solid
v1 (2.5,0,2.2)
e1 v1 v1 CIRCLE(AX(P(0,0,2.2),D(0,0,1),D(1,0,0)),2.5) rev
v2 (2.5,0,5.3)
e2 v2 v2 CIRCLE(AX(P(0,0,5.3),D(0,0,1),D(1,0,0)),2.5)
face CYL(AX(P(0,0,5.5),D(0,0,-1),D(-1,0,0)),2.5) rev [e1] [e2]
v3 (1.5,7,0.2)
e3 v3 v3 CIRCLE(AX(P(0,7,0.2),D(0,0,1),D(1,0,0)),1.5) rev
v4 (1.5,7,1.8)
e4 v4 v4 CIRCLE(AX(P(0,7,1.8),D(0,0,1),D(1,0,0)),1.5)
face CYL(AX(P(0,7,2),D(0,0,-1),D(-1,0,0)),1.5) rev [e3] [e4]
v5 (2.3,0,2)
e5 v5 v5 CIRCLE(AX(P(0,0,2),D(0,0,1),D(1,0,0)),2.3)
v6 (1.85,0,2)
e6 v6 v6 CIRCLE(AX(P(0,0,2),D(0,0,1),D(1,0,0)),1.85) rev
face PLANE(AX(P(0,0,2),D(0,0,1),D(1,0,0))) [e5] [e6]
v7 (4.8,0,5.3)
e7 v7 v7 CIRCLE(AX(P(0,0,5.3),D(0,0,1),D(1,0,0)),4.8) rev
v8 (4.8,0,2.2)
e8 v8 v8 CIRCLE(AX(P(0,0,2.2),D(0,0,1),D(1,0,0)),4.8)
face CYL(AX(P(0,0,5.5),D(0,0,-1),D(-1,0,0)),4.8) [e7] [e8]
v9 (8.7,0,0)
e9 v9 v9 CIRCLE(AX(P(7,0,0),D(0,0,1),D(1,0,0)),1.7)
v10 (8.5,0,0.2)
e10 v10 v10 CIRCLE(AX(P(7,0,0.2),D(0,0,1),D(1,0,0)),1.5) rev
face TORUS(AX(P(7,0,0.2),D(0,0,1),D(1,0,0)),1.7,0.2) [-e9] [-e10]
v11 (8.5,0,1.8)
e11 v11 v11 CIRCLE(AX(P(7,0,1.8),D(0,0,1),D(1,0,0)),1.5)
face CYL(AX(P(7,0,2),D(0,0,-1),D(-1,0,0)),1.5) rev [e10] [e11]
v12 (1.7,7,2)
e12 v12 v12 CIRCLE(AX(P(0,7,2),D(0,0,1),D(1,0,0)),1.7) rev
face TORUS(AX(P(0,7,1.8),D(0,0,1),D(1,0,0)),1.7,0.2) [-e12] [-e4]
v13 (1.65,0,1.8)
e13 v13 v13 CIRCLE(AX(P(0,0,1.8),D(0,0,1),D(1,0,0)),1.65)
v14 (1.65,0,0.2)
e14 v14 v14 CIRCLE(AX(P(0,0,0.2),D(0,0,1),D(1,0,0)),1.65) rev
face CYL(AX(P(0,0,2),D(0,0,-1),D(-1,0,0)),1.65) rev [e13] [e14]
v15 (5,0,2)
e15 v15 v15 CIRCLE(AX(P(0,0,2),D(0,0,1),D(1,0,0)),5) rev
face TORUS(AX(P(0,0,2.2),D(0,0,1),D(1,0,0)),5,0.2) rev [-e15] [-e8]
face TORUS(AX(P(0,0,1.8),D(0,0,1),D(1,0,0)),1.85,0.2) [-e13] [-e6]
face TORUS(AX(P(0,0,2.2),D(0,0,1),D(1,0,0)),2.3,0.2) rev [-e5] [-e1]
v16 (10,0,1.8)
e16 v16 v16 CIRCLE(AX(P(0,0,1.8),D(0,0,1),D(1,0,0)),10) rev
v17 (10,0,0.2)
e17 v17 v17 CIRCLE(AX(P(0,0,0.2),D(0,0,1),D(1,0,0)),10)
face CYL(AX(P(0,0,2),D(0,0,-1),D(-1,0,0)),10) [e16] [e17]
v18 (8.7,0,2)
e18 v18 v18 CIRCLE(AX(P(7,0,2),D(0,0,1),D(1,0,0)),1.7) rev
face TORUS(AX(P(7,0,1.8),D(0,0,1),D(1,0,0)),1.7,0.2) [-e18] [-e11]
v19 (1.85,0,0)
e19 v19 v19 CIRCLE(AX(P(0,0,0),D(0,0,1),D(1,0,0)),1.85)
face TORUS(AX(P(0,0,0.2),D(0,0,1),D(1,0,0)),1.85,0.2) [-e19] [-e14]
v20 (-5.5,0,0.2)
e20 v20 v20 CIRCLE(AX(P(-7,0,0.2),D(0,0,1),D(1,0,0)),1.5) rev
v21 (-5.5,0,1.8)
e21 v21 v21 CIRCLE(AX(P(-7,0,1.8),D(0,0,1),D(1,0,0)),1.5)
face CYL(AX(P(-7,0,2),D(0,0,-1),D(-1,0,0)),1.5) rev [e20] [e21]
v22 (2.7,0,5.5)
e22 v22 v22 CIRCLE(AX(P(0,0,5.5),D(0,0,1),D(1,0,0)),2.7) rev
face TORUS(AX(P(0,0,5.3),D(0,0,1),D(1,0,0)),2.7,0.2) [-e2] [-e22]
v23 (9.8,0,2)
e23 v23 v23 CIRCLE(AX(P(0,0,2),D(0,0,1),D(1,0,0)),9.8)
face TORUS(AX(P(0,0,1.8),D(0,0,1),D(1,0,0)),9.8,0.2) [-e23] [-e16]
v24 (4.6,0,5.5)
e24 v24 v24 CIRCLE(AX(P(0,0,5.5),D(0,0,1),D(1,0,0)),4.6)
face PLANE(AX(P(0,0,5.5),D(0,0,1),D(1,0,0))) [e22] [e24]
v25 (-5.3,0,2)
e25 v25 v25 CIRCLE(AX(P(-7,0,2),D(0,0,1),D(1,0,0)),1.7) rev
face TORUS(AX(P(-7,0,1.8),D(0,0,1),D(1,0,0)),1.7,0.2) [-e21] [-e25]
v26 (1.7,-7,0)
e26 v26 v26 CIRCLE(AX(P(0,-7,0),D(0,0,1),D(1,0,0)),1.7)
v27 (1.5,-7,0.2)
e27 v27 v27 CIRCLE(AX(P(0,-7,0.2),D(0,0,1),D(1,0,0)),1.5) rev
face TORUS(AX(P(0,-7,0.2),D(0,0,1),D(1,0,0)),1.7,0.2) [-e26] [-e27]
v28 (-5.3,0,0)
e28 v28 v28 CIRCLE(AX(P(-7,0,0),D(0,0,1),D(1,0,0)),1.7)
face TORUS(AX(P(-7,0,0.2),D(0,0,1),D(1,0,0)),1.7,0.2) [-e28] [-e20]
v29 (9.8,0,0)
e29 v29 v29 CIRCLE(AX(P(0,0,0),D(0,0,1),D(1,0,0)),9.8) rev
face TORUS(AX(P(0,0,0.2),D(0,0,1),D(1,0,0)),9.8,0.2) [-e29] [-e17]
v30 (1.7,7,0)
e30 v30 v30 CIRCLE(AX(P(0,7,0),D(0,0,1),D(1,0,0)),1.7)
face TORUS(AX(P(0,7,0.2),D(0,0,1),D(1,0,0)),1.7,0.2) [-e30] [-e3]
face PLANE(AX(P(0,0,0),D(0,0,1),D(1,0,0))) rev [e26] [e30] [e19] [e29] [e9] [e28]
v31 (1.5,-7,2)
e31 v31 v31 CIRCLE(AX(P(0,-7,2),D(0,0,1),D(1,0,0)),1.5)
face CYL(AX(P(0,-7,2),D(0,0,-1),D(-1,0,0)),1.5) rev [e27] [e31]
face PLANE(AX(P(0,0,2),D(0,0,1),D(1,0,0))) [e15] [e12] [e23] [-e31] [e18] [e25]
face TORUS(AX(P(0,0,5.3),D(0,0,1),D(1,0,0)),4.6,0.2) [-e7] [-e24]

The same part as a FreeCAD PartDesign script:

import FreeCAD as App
import Part
import Sketcher
Q = App.Units.Quantity


def edges_at(feature, points):
    """Names of the edges that pass closest to the given points."""
    edges = feature.Shape.Edges
    near = lambda p: min(range(len(edges)), key=lambda i: edges[i].distToShape(Part.Vertex(*p))[0])
    return sorted({f"Edge{near(p) + 1}" for p in points})

doc = App.newDocument("Part")
body = doc.addObject("PartDesign::Body", "Body")

# Sketch on XY plane
sketch1 = body.newObject("Sketcher::SketchObject", "Sketch")
sketch1.AttachmentSupport = (doc.getObject("XY_Plane"), [""])
sketch1.MapMode = "FlatFace"
sketch1.addGeometry(Part.Circle(App.Vector(0, 0, 0), App.Vector(0, 0, 1), 2.5), False)
sketch1.addGeometry(Part.Circle(App.Vector(0, 0, 0), App.Vector(0, 0, 1), 1.6), False)
sketch1.addConstraint(Sketcher.Constraint("Coincident", 0, 3, -1, 1))
sketch1.addConstraint(Sketcher.Constraint("Coincident", 1, 3, -1, 1))
sketch1.addConstraint(Sketcher.Constraint("Diameter", 0, Q("5 mm")))
sketch1.addConstraint(Sketcher.Constraint("Diameter", 1, Q("3.3 mm")))
pad1 = body.newObject("PartDesign::Pad", "Pad")
pad1.Profile = sketch1
pad1.Length = 2
body2 = doc.addObject("PartDesign::Body", "Body001")

# Sketch on XY plane
sketch2 = body2.newObject("Sketcher::SketchObject", "Sketch001")
sketch2.AttachmentSupport = (doc.getObject("XY_Plane001"), [""])
sketch2.MapMode = "FlatFace"
sketch2.addGeometry(Part.Circle(App.Vector(0, 0, 0), App.Vector(0, 0, 1), 10), False)
sketch2.addGeometry(Part.Circle(App.Vector(0, -7, 0), App.Vector(0, 0, 1), 1.5), False)
sketch2.addGeometry(Part.Circle(App.Vector(-7, 0, 0), App.Vector(0, 0, 1), 1.5), False)
sketch2.addGeometry(Part.Circle(App.Vector(0, 0, 0), App.Vector(0, 0, 1), 4.8), False)
sketch2.addGeometry(Part.Circle(App.Vector(7, 0, 0), App.Vector(0, 0, 1), 1.5), False)
sketch2.addGeometry(Part.Circle(App.Vector(0, 7, 0), App.Vector(0, 0, 1), 1.5), False)
sketch2.addConstraint(Sketcher.Constraint("Coincident", 0, 3, -1, 1))
sketch2.addConstraint(Sketcher.Constraint("Coincident", 3, 3, -1, 1))
sketch2.addConstraint(Sketcher.Constraint("Equal", 1, 2))
sketch2.addConstraint(Sketcher.Constraint("Equal", 2, 4))
sketch2.addConstraint(Sketcher.Constraint("Equal", 4, 5))
sketch2.addConstraint(Sketcher.Constraint("Symmetric", 2, 3, 4, 3, -1, 1))
sketch2.addConstraint(Sketcher.Constraint("Symmetric", 1, 3, 5, 3, -1, 1))
sketch2.addConstraint(Sketcher.Constraint("PointOnObject", 1, 3, -2))
sketch2.addConstraint(Sketcher.Constraint("PointOnObject", 2, 3, -1))
sketch2.addConstraint(Sketcher.Constraint("Diameter", 0, Q("20 mm")))
sketch2.addConstraint(Sketcher.Constraint("Diameter", 1, Q("3 mm")))
sketch2.addConstraint(Sketcher.Constraint("Diameter", 3, Q("9.6 mm")))
sketch2.addConstraint(Sketcher.Constraint("DistanceY", 1, 3, -1, 1, Q("7 mm")))
sketch2.addConstraint(Sketcher.Constraint("DistanceX", 2, 3, -1, 1, Q("7 mm")))
pad2 = body2.newObject("PartDesign::Pad", "Pad001")
pad2.Profile = sketch2
pad2.Length = 2
body.AllowCompound = True
doc.recompute()

boolean = body.newObject("PartDesign::Boolean", "Boolean")
boolean.Type = "Fuse"
boolean.addObjects([body2])

# Sketch on XY plane
sketch3 = body.newObject("Sketcher::SketchObject", "Sketch002")
sketch3.AttachmentSupport = (doc.getObject("XY_Plane"), [""])
sketch3.MapMode = "FlatFace"
sketch3.addGeometry(Part.Circle(App.Vector(0, 0, 0), App.Vector(0, 0, 1), 4.8), False)
sketch3.addGeometry(Part.Circle(App.Vector(0, 0, 0), App.Vector(0, 0, 1), 2.5), False)
sketch3.addConstraint(Sketcher.Constraint("Coincident", 0, 3, -1, 1))
sketch3.addConstraint(Sketcher.Constraint("Coincident", 1, 3, -1, 1))
sketch3.addConstraint(Sketcher.Constraint("Diameter", 1, Q("5 mm")))
sketch3.addConstraint(Sketcher.Constraint("Diameter", 0, Q("9.6 mm")))
pad3 = body.newObject("PartDesign::Pad", "Pad002")
pad3.Profile = sketch3
pad3.Length = 5.5
doc.recompute()

fillet = body.newObject("PartDesign::Fillet", "Fillet")
fillet.Base = (pad3, edges_at(pad3, [
    (-4.8, 0, 2),
    (-1.5, 7, 2),
    (5.5, 0, 2),
    (-8.5, 0, 2),
    (-10, 0, 0),
    (-10, 0, 2),
    (-8.5, 0, 0),
    (-1.5, -7, 0),
    (5.5, 0, 0),
    (-1.5, 7, 0),
    (-1.65, 0, 0),
    (-1.65, 0, 2),
    (-2.5, 0, 2),
    (-2.5, 0, 5.5),
    (-4.8, 0, 5.5),
]))
fillet.Radius = 0.2

doc.recompute()
